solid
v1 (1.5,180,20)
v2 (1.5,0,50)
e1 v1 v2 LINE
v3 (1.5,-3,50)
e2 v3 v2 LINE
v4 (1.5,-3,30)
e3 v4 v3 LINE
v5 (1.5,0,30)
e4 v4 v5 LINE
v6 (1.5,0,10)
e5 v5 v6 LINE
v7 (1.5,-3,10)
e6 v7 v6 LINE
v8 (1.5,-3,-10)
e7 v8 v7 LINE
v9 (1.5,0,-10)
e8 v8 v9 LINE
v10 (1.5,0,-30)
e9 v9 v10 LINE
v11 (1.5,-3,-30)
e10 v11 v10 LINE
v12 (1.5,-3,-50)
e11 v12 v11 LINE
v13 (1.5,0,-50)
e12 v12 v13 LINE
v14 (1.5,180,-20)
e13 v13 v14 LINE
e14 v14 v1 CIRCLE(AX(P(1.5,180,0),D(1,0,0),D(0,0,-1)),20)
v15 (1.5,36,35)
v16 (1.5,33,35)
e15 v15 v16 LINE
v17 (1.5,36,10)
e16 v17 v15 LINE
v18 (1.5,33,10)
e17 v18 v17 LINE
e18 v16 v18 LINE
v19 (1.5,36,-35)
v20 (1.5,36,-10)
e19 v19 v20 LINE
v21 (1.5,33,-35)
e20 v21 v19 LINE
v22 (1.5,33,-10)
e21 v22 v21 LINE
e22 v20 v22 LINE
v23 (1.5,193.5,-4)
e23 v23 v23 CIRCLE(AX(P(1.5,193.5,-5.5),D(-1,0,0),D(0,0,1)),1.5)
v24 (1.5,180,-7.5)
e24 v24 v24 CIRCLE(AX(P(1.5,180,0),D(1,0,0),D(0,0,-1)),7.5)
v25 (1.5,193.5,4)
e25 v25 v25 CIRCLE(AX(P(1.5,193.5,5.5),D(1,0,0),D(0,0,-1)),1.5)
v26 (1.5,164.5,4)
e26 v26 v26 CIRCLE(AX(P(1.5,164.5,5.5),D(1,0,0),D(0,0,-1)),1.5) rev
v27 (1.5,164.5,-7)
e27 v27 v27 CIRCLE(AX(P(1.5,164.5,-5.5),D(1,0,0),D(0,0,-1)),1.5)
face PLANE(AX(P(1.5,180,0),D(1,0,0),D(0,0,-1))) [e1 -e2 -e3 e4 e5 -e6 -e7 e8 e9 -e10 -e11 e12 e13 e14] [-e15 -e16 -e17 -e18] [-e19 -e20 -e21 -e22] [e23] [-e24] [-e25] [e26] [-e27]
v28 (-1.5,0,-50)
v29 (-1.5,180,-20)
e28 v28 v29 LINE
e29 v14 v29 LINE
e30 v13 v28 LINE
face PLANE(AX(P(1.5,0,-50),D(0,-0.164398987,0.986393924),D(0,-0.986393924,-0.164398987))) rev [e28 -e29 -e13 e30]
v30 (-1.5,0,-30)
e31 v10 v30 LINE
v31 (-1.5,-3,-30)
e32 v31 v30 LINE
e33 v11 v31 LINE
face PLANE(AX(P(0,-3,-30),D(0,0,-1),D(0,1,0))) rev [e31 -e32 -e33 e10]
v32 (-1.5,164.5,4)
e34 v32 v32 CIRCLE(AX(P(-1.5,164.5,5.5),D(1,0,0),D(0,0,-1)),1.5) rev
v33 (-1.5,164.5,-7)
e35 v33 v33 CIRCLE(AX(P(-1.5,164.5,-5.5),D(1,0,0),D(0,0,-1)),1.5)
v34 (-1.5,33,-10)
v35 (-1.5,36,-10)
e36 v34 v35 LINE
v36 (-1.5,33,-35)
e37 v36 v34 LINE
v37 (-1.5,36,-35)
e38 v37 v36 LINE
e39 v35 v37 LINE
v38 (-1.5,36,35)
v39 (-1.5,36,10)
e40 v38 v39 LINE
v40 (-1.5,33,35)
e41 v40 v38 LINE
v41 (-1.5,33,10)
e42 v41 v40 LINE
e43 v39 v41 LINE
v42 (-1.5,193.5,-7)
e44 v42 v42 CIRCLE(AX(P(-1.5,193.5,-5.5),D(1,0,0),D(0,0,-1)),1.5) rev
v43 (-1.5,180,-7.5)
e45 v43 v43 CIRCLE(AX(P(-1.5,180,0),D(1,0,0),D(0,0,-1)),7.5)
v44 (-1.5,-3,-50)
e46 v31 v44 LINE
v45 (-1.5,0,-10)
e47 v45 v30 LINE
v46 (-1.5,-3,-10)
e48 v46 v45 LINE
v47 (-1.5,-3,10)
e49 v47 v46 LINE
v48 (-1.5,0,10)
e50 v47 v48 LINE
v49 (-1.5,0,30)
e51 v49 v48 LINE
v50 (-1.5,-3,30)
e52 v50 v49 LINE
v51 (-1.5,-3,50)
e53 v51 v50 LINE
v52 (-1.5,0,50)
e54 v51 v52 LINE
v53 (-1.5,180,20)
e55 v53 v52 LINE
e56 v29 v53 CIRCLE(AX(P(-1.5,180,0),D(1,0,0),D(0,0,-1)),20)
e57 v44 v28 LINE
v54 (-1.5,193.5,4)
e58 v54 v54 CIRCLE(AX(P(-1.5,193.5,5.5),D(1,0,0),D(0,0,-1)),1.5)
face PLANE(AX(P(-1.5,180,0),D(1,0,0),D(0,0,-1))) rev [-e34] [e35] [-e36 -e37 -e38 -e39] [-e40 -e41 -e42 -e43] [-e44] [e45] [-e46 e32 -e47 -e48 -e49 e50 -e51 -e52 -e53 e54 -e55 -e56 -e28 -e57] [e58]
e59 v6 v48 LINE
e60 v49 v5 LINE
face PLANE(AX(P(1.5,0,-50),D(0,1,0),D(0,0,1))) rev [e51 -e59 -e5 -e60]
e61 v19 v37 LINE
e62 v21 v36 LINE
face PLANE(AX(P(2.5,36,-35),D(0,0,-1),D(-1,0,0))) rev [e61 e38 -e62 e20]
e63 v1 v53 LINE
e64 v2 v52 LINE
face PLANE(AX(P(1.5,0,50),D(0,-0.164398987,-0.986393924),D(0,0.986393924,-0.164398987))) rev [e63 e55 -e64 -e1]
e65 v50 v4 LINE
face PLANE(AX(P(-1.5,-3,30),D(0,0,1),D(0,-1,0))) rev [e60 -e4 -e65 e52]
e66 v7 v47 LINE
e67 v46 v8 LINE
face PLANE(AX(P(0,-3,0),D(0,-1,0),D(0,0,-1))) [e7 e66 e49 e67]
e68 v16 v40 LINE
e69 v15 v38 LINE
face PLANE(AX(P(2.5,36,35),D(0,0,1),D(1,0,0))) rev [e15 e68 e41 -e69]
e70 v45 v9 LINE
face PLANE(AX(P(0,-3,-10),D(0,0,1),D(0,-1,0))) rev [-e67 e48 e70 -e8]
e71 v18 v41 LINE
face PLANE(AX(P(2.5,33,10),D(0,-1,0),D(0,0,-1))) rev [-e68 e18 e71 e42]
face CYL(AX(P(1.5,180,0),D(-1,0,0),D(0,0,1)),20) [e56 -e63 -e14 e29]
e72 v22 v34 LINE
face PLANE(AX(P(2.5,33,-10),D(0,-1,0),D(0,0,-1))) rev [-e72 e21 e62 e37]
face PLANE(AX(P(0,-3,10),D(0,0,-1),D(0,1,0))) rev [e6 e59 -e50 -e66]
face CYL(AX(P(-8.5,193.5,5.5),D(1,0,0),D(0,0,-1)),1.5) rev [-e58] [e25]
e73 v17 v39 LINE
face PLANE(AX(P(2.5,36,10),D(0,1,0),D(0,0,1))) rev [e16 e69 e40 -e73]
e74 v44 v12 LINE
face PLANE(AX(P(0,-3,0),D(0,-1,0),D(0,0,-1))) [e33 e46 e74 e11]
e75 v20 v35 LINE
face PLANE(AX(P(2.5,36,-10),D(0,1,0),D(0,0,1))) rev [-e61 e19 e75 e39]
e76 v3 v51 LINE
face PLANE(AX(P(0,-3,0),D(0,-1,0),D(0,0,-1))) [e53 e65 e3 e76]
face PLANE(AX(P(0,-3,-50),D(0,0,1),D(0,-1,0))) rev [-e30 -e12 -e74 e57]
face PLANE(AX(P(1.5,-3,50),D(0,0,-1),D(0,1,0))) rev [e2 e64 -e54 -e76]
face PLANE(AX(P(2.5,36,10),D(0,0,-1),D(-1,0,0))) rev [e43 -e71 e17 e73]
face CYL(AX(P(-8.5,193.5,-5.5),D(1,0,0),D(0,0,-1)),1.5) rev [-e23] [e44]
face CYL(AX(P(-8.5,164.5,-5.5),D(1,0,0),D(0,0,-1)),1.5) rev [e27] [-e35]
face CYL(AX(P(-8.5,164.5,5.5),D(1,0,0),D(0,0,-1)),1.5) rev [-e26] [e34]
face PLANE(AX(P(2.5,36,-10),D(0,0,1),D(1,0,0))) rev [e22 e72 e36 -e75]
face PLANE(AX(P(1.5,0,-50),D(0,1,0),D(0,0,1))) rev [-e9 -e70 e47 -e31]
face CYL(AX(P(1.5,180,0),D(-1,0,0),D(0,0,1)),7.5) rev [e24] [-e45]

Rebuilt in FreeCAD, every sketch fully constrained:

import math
import FreeCAD as App
import Part
import Sketcher

V = App.Vector


def add_polygon(sketch, points):
    """Adds a closed chain of lines whose ends are joined by coincident constraints."""
    first, n = sketch.GeometryCount, len(points)
    for a, b in zip(points, points[1:] + points[:1]):
        sketch.addGeometry(Part.LineSegment(App.Vector(*a, 0), App.Vector(*b, 0)), False)
    for i in range(n):
        sketch.addConstraint(Sketcher.Constraint("Coincident", first + i, 2, first + (i + 1) % n, 1))

doc = App.newDocument("Part")
body = doc.addObject("PartDesign::Body", "Body")

# Sketch on YZ plane
sketch1 = body.newObject("Sketcher::SketchObject", "Sketch")
sketch1.AttachmentSupport = (doc.getObject("YZ_Plane"), [""])
sketch1.MapMode = "FlatFace"
sketch1.addGeometry(Part.LineSegment(V(0, 50, 0), V(0, -50, 0)), False)
sketch1.addGeometry(Part.LineSegment(V(0, -50, 0), V(180, -20, 0)), False)
sketch1.addGeometry(Part.ArcOfCircle(Part.Circle(V(180, 0, 0), V(0, 0, 1), 20), math.radians(-90), math.radians(90)), False)
sketch1.addGeometry(Part.LineSegment(V(180, 20, 0), V(0, 50, 0)), False)
sketch1.addGeometry(Part.Circle(V(180, 0, 0), V(0, 0, 1), 7.5), False)
sketch1.addConstraint(Sketcher.Constraint("Coincident", 0, 2, 1, 1))
sketch1.addConstraint(Sketcher.Constraint("Coincident", 1, 2, 2, 1))
sketch1.addConstraint(Sketcher.Constraint("Coincident", 2, 2, 3, 1))
sketch1.addConstraint(Sketcher.Constraint("Coincident", 3, 2, 0, 1))
sketch1.addConstraint(Sketcher.Constraint("Vertical", 0))
sketch1.addConstraint(Sketcher.Constraint("Coincident", 4, 3, 2, 3))
sketch1.addConstraint(Sketcher.Constraint("Symmetric", 0, 2, 3, 2, -1, 1))
sketch1.addConstraint(Sketcher.Constraint("Symmetric", 1, 2, 2, 2, -1))
sketch1.addConstraint(Sketcher.Constraint("Vertical", 4, 3, 1, 2))
sketch1.addConstraint(Sketcher.Constraint("Diameter", 4, 15.0))
sketch1.addConstraint(Sketcher.Constraint("Radius", 2, 20.0))
sketch1.addConstraint(Sketcher.Constraint("DistanceY", 0, 2, 0, 1, 100.0))
sketch1.addConstraint(Sketcher.Constraint("DistanceX", -1, 1, 2, 3, 180.0))
pad1 = body.newObject("PartDesign::Pad", "Pad")
pad1.Profile = sketch1
pad1.Length = 3
pad1.Midplane = True

# Sketch on YZ plane
sketch2 = body.newObject("Sketcher::SketchObject", "Sketch001")
sketch2.AttachmentSupport = (doc.getObject("YZ_Plane"), [""])
sketch2.MapMode = "FlatFace"
sketch2.AttachmentOffset = App.Placement(V(0, 0, -1.5), App.Rotation())
add_polygon(sketch2, [(36, 10), (33, 10), (33, 35), (36, 35)])  # lines 0-3
add_polygon(sketch2, [(36, -35), (33, -35), (33, -10), (36, -10)])  # lines 4-7
sketch2.addConstraint(Sketcher.Constraint("Horizontal", 0))
sketch2.addConstraint(Sketcher.Constraint("Vertical", 1))
sketch2.addConstraint(Sketcher.Constraint("Horizontal", 2))
sketch2.addConstraint(Sketcher.Constraint("Vertical", 3))
sketch2.addConstraint(Sketcher.Constraint("Horizontal", 4))
sketch2.addConstraint(Sketcher.Constraint("Vertical", 5))
sketch2.addConstraint(Sketcher.Constraint("Horizontal", 6))
sketch2.addConstraint(Sketcher.Constraint("Vertical", 7))
sketch2.addConstraint(Sketcher.Constraint("Symmetric", 1, 2, 4, 2, -1))
sketch2.addConstraint(Sketcher.Constraint("Symmetric", 3, 2, 6, 2, -1))
sketch2.addConstraint(Sketcher.Constraint("DistanceX", 0, 2, 0, 1, 3.0))
sketch2.addConstraint(Sketcher.Constraint("DistanceY", 1, 1, 1, 2, 25.0))
sketch2.addConstraint(Sketcher.Constraint("DistanceX", -1, 1, 0, 2, 33.0))
sketch2.addConstraint(Sketcher.Constraint("DistanceY", -1, 1, 0, 2, 10.0))
pocket1 = body.newObject("PartDesign::Pocket", "Pocket")
pocket1.Profile = sketch2
pocket1.Length = 4
pocket1.Reversed = True

# Sketch on XZ plane
sketch3 = body.newObject("Sketcher::SketchObject", "Sketch002")
sketch3.AttachmentSupport = (doc.getObject("XZ_Plane"), [""])
sketch3.MapMode = "FlatFace"
add_polygon(sketch3, [(-1.5, 10), (-1.5, -10), (1.5, -10), (1.5, 10)])  # lines 0-3
add_polygon(sketch3, [(-1.5, -30), (-1.5, -50), (1.5, -50), (1.5, -30)])  # lines 4-7
add_polygon(sketch3, [(-1.5, 50), (-1.5, 30), (1.5, 30), (1.5, 50)])  # lines 8-11
sketch3.addConstraint(Sketcher.Constraint("Vertical", 0))
sketch3.addConstraint(Sketcher.Constraint("Horizontal", 1))
sketch3.addConstraint(Sketcher.Constraint("Vertical", 2))
sketch3.addConstraint(Sketcher.Constraint("Horizontal", 3))
sketch3.addConstraint(Sketcher.Constraint("Vertical", 4))
sketch3.addConstraint(Sketcher.Constraint("Horizontal", 5))
sketch3.addConstraint(Sketcher.Constraint("Vertical", 6))
sketch3.addConstraint(Sketcher.Constraint("Horizontal", 7))
sketch3.addConstraint(Sketcher.Constraint("Vertical", 8))
sketch3.addConstraint(Sketcher.Constraint("Horizontal", 9))
sketch3.addConstraint(Sketcher.Constraint("Vertical", 10))
sketch3.addConstraint(Sketcher.Constraint("Horizontal", 11))
sketch3.addConstraint(Sketcher.Constraint("Symmetric", 0, 2, 2, 2, -1, 1))
sketch3.addConstraint(Sketcher.Constraint("Symmetric", 6, 2, 8, 2, -1, 1))
sketch3.addConstraint(Sketcher.Constraint("Symmetric", 4, 2, 10, 2, -1, 1))
sketch3.addConstraint(Sketcher.Constraint("Vertical", 3, 2, 4, 2))
sketch3.addConstraint(Sketcher.Constraint("Vertical", 2, 2, 5, 2))
sketch3.addConstraint(Sketcher.Constraint("Equal", 2, 4))
sketch3.addConstraint(Sketcher.Constraint("DistanceX", 1, 1, 1, 2, 3.0))
sketch3.addConstraint(Sketcher.Constraint("DistanceY", 0, 2, 0, 1, 20.0))
sketch3.addConstraint(Sketcher.Constraint("DistanceY", 4, 2, -1, 1, 50.0))
pad2 = body.newObject("PartDesign::Pad", "Pad001")
pad2.Profile = sketch3
pad2.Length = 3

# Sketch on YZ plane
sketch4 = body.newObject("Sketcher::SketchObject", "Sketch003")
sketch4.AttachmentSupport = (doc.getObject("YZ_Plane"), [""])
sketch4.MapMode = "FlatFace"
sketch4.AttachmentOffset = App.Placement(V(0, 0, 1.5), App.Rotation())
sketch4.addGeometry(Part.Circle(V(193.5, 5.5, 0), V(0, 0, 1), 1.5), False)
sketch4.addGeometry(Part.Circle(V(164.5, 5.5, 0), V(0, 0, 1), 1.5), False)
sketch4.addGeometry(Part.Circle(V(164.5, -5.5, 0), V(0, 0, 1), 1.5), False)
sketch4.addGeometry(Part.Circle(V(193.5, -5.5, 0), V(0, 0, 1), 1.5), False)
sketch4.addConstraint(Sketcher.Constraint("Equal", 0, 1))
sketch4.addConstraint(Sketcher.Constraint("Equal", 1, 2))
sketch4.addConstraint(Sketcher.Constraint("Equal", 2, 3))
sketch4.addConstraint(Sketcher.Constraint("Symmetric", 1, 3, 2, 3, -1))
sketch4.addConstraint(Sketcher.Constraint("Symmetric", 0, 3, 3, 3, -1))
sketch4.addConstraint(Sketcher.Constraint("Horizontal", 0, 3, 1, 3))
sketch4.addConstraint(Sketcher.Constraint("Diameter", 0, 3.0))
sketch4.addConstraint(Sketcher.Constraint("DistanceX", 1, 3, 0, 3, 29.0))
sketch4.addConstraint(Sketcher.Constraint("DistanceY", 2, 3, 1, 3, 11.0))
sketch4.addConstraint(Sketcher.Constraint("DistanceX", -1, 1, 0, 3, 193.5))
pocket2 = body.newObject("PartDesign::Pocket", "Pocket001")
pocket2.Profile = sketch4
pocket2.Length = 10

doc.recompute()
